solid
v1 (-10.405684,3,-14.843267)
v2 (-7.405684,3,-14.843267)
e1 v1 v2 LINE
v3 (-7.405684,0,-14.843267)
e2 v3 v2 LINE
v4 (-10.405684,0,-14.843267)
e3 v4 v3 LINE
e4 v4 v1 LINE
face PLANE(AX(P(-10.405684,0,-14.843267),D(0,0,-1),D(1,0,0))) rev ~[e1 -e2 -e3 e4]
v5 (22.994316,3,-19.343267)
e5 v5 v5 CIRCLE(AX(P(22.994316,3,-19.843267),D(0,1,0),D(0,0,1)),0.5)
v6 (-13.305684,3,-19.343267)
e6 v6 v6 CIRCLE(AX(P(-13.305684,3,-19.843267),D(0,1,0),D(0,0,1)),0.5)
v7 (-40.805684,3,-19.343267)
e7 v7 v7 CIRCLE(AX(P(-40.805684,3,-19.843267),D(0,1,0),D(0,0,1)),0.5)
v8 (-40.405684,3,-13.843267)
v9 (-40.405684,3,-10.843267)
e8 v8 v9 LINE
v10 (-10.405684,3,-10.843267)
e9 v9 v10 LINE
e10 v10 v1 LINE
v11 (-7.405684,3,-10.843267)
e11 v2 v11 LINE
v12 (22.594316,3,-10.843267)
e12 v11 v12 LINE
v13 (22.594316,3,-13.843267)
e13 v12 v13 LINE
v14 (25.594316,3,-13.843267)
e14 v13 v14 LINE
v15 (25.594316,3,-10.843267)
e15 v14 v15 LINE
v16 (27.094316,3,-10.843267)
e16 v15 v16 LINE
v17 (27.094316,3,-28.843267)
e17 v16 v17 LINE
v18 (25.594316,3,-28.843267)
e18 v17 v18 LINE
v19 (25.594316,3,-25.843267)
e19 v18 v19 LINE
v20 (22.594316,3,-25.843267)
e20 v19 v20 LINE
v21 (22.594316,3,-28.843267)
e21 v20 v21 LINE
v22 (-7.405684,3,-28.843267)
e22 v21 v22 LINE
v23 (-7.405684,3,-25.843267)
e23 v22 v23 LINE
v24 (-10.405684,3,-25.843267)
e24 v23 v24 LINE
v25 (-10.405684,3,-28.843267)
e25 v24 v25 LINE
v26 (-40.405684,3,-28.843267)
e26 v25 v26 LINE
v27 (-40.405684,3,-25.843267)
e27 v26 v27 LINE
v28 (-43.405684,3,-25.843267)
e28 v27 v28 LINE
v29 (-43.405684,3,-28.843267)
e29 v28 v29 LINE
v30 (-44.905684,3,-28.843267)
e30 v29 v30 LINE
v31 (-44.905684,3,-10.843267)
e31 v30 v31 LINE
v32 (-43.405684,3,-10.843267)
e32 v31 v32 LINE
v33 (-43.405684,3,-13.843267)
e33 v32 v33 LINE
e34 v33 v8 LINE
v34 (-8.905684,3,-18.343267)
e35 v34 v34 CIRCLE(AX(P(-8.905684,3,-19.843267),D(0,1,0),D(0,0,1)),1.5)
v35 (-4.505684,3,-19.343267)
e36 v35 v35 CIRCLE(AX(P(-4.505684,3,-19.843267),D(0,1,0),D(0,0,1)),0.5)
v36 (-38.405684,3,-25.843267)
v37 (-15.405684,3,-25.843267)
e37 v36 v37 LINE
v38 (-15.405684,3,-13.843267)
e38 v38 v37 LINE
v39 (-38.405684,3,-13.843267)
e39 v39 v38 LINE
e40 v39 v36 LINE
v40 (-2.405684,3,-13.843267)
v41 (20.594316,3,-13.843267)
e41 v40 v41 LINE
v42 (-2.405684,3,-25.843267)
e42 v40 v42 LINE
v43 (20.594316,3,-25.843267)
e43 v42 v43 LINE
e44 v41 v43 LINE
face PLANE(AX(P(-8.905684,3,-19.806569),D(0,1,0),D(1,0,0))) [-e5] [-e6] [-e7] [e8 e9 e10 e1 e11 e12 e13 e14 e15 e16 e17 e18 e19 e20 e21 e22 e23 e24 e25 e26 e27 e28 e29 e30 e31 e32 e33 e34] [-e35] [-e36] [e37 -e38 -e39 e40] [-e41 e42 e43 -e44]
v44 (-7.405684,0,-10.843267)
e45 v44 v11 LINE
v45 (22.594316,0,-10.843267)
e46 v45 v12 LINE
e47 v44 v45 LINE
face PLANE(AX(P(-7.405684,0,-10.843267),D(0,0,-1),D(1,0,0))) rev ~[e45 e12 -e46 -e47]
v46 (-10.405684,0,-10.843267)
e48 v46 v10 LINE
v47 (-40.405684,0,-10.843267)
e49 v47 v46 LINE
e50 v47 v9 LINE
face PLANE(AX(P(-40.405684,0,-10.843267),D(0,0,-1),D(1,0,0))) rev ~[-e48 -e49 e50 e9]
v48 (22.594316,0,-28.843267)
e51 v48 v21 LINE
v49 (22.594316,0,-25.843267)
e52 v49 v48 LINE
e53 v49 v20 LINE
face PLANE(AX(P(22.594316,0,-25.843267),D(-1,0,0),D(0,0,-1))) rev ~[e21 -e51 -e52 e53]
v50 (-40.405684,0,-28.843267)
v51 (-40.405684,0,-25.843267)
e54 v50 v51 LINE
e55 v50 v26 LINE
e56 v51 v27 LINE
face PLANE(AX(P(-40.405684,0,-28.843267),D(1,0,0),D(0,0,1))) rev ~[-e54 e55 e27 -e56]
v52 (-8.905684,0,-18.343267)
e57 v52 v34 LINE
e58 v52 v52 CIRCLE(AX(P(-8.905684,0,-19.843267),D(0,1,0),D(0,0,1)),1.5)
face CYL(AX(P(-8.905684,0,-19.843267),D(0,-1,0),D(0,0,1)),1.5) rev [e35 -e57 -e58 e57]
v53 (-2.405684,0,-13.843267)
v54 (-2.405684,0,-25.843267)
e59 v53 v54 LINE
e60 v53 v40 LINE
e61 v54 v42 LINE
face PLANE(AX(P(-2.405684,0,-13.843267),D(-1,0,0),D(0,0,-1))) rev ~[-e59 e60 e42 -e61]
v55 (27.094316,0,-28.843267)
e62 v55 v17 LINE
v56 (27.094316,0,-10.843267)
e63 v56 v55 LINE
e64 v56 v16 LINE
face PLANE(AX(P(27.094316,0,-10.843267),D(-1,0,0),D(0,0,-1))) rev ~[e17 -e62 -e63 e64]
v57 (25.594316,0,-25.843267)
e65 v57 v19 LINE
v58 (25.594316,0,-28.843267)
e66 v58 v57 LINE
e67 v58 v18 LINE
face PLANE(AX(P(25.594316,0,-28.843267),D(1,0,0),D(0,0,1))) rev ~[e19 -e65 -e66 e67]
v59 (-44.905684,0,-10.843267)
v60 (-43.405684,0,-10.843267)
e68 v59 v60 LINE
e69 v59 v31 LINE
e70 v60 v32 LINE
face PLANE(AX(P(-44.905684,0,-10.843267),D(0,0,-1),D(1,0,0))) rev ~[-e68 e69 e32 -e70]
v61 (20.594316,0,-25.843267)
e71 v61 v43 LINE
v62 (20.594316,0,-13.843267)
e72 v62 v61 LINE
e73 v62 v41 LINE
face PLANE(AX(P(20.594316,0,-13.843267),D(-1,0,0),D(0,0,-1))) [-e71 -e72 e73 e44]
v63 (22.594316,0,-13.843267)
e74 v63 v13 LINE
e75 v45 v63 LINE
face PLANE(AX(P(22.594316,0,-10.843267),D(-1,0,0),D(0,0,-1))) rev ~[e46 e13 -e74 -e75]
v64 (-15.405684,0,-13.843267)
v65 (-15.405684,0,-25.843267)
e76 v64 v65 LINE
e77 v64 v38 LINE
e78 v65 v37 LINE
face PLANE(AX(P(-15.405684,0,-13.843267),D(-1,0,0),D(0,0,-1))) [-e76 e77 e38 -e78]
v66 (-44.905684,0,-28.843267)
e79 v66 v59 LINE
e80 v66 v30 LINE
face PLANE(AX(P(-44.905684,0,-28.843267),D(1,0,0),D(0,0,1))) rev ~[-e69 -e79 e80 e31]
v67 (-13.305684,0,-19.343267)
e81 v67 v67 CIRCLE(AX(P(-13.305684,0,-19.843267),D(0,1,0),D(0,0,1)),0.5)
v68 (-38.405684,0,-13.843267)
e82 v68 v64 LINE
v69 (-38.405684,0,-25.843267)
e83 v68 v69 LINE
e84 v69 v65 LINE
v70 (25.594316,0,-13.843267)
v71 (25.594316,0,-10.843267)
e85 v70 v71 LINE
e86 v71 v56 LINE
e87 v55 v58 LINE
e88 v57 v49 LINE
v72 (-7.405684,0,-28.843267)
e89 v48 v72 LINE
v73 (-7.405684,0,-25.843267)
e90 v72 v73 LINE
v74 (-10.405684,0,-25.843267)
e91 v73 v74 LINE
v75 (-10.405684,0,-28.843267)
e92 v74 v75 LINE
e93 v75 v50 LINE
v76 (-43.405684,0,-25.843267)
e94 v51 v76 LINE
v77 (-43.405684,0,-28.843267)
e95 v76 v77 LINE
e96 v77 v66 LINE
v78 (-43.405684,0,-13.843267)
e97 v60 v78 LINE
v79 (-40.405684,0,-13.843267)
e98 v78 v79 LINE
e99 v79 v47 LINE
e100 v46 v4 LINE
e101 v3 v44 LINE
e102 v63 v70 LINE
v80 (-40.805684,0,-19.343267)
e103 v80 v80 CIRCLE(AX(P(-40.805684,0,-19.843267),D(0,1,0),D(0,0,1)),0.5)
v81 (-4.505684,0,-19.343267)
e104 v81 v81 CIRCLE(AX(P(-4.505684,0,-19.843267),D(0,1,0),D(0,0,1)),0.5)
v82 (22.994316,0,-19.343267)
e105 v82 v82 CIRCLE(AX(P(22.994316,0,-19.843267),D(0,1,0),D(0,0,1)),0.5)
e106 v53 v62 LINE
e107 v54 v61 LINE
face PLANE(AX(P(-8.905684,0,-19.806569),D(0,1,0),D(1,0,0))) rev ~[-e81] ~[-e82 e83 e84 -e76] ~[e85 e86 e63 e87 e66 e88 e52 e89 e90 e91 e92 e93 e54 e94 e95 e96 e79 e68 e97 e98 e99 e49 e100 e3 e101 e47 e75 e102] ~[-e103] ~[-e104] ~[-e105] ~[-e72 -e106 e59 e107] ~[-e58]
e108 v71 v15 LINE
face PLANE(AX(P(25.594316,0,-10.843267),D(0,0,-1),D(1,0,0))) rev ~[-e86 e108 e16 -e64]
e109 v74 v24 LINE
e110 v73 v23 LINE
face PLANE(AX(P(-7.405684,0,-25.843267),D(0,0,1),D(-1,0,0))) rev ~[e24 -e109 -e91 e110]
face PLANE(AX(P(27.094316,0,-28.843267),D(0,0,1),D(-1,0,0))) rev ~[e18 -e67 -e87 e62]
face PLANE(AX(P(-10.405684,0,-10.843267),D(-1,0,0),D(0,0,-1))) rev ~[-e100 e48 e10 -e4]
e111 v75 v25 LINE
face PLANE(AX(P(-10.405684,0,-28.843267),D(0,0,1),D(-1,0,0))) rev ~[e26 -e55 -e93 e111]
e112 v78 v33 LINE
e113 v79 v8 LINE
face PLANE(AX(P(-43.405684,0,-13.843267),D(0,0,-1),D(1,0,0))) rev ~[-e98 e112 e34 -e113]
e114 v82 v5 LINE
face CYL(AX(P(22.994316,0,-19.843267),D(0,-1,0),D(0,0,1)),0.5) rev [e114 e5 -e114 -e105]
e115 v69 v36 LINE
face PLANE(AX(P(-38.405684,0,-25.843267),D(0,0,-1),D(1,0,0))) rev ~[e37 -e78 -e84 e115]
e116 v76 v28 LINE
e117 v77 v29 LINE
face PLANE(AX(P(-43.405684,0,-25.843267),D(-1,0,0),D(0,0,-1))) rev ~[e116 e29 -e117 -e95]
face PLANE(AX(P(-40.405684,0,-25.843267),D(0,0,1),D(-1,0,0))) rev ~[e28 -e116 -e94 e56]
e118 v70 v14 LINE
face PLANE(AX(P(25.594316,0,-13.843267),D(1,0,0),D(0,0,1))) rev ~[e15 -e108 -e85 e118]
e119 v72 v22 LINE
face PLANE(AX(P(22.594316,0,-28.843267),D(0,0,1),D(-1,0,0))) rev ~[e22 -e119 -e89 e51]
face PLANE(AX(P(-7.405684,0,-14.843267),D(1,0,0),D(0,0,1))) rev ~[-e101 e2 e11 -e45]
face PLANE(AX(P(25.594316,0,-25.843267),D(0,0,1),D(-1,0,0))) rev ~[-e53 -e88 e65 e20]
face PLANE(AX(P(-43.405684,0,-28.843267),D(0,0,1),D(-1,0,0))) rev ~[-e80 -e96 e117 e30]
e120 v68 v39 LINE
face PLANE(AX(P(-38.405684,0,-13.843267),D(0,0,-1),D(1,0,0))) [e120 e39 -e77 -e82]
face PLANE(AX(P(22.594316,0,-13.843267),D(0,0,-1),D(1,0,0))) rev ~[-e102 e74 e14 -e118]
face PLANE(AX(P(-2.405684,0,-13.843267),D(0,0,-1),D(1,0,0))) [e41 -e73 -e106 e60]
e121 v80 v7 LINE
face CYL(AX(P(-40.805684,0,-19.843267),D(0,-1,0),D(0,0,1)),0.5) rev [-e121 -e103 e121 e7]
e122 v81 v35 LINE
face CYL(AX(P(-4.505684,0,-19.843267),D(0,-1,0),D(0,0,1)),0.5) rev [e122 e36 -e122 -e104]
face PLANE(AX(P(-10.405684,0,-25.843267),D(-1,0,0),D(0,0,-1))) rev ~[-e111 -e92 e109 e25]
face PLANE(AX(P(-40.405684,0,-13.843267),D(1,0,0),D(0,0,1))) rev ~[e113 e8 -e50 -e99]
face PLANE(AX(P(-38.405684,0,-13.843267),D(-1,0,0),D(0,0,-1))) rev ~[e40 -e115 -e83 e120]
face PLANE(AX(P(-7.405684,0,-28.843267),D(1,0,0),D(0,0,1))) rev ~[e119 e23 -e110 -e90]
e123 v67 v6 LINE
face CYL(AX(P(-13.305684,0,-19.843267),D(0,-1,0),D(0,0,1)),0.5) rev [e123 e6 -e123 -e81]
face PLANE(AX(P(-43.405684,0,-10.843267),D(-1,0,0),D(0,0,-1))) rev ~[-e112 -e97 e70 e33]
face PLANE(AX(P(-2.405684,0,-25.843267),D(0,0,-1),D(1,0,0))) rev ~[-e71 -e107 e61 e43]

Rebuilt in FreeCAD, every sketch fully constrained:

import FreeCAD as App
import Part
import Sketcher

V = App.Vector

doc = App.newDocument("Part")
body = doc.addObject("PartDesign::Body", "Body")

sketch1 = body.newObject("Sketcher::SketchObject", "Sketch")
sketch1.AttachmentSupport = (doc.getObject("XZ_Plane"), [""])
sketch1.MapMode = "FlatFace"
sketch1.addGeometry([
    Part.LineSegment(V(22.6, -25.8, 0), V(22.6, -28.8, 0)),
    Part.LineSegment(V(22.6, -28.8, 0), V(-7.4, -28.8, 0)),
    Part.LineSegment(V(-7.4, -28.8, 0), V(-7.4, -25.8, 0)),
    Part.LineSegment(V(-7.4, -25.8, 0), V(-10.4, -25.8, 0)),
    Part.LineSegment(V(-10.4, -25.8, 0), V(-10.4, -28.8, 0)),
    Part.LineSegment(V(-10.4, -28.8, 0), V(-40.4, -28.8, 0)),
    Part.LineSegment(V(-40.4, -28.8, 0), V(-40.4, -25.8, 0)),
    Part.LineSegment(V(-40.4, -25.8, 0), V(-43.4, -25.8, 0)),
    Part.LineSegment(V(-43.4, -25.8, 0), V(-43.4, -28.8, 0)),
    Part.LineSegment(V(-43.4, -28.8, 0), V(-44.9, -28.8, 0)),
    Part.LineSegment(V(-44.9, -28.8, 0), V(-44.9, -10.8, 0)),
    Part.LineSegment(V(-44.9, -10.8, 0), V(-43.4, -10.8, 0)),
    Part.LineSegment(V(-43.4, -10.8, 0), V(-43.4, -13.8, 0)),
    Part.LineSegment(V(-43.4, -13.8, 0), V(-40.4, -13.8, 0)),
    Part.LineSegment(V(-40.4, -13.8, 0), V(-40.4, -10.8, 0)),
    Part.LineSegment(V(-40.4, -10.8, 0), V(-10.4, -10.8, 0)),
    Part.LineSegment(V(-10.4, -10.8, 0), V(-10.4, -14.8, 0)),
    Part.LineSegment(V(-10.4, -14.8, 0), V(-7.4, -14.8, 0)),
    Part.LineSegment(V(-7.4, -14.8, 0), V(-7.4, -10.8, 0)),
    Part.LineSegment(V(-7.4, -10.8, 0), V(22.6, -10.8, 0)),
    Part.LineSegment(V(22.6, -10.8, 0), V(22.6, -13.8, 0)),
    Part.LineSegment(V(22.6, -13.8, 0), V(25.6, -13.8, 0)),
    Part.LineSegment(V(25.6, -13.8, 0), V(25.6, -10.8, 0)),
    Part.LineSegment(V(25.6, -10.8, 0), V(27.1, -10.8, 0)),
    Part.LineSegment(V(27.1, -10.8, 0), V(27.1, -28.8, 0)),
    Part.LineSegment(V(27.1, -28.8, 0), V(25.6, -28.8, 0)),
    Part.LineSegment(V(25.6, -28.8, 0), V(25.6, -25.8, 0)),
    Part.LineSegment(V(25.6, -25.8, 0), V(22.6, -25.8, 0)),
    Part.Circle(V(-40.8, -19.8, 0), V(0, 0, 1), 0.5),
    Part.LineSegment(V(-15.4, -13.8, 0), V(-38.4, -13.8, 0)),
    Part.LineSegment(V(-38.4, -13.8, 0), V(-38.4, -25.8, 0)),
    Part.LineSegment(V(-38.4, -25.8, 0), V(-15.4, -25.8, 0)),
    Part.LineSegment(V(-15.4, -25.8, 0), V(-15.4, -13.8, 0)),
    Part.Circle(V(-13.3, -19.8, 0), V(0, 0, 1), 0.5),
    Part.Circle(V(-8.9, -19.8, 0), V(0, 0, 1), 1.5),
    Part.Circle(V(-4.5, -19.8, 0), V(0, 0, 1), 0.5),
    Part.LineSegment(V(20.6, -13.8, 0), V(-2.4, -13.8, 0)),
    Part.LineSegment(V(-2.4, -13.8, 0), V(-2.4, -25.8, 0)),
    Part.LineSegment(V(-2.4, -25.8, 0), V(20.6, -25.8, 0)),
    Part.LineSegment(V(20.6, -25.8, 0), V(20.6, -13.8, 0)),
    Part.Circle(V(23, -19.8, 0), V(0, 0, 1), 0.5),
], False)
sketch1.addConstraint([
    Sketcher.Constraint("Coincident", 0, 2, 1, 1),
    Sketcher.Constraint("Coincident", 1, 2, 2, 1),
    Sketcher.Constraint("Coincident", 2, 2, 3, 1),
    Sketcher.Constraint("Coincident", 3, 2, 4, 1),
    Sketcher.Constraint("Coincident", 4, 2, 5, 1),
    Sketcher.Constraint("Coincident", 5, 2, 6, 1),
    Sketcher.Constraint("Coincident", 6, 2, 7, 1),
    Sketcher.Constraint("Coincident", 7, 2, 8, 1),
    Sketcher.Constraint("Coincident", 8, 2, 9, 1),
    Sketcher.Constraint("Coincident", 9, 2, 10, 1),
    Sketcher.Constraint("Coincident", 10, 2, 11, 1),
    Sketcher.Constraint("Coincident", 11, 2, 12, 1),
    Sketcher.Constraint("Coincident", 12, 2, 13, 1),
    Sketcher.Constraint("Coincident", 13, 2, 14, 1),
    Sketcher.Constraint("Coincident", 14, 2, 15, 1),
    Sketcher.Constraint("Coincident", 15, 2, 16, 1),
    Sketcher.Constraint("Coincident", 16, 2, 17, 1),
    Sketcher.Constraint("Coincident", 17, 2, 18, 1),
    Sketcher.Constraint("Coincident", 18, 2, 19, 1),
    Sketcher.Constraint("Coincident", 19, 2, 20, 1),
    Sketcher.Constraint("Coincident", 20, 2, 21, 1),
    Sketcher.Constraint("Coincident", 21, 2, 22, 1),
    Sketcher.Constraint("Coincident", 22, 2, 23, 1),
    Sketcher.Constraint("Coincident", 23, 2, 24, 1),
    Sketcher.Constraint("Coincident", 24, 2, 25, 1),
    Sketcher.Constraint("Coincident", 25, 2, 26, 1),
    Sketcher.Constraint("Coincident", 26, 2, 27, 1),
    Sketcher.Constraint("Coincident", 27, 2, 0, 1),
    Sketcher.Constraint("Coincident", 29, 2, 30, 1),
    Sketcher.Constraint("Coincident", 30, 2, 31, 1),
    Sketcher.Constraint("Coincident", 31, 2, 32, 1),
    Sketcher.Constraint("Coincident", 32, 2, 29, 1),
    Sketcher.Constraint("Coincident", 36, 2, 37, 1),
    Sketcher.Constraint("Coincident", 37, 2, 38, 1),
    Sketcher.Constraint("Coincident", 38, 2, 39, 1),
    Sketcher.Constraint("Coincident", 39, 2, 36, 1),
    Sketcher.Constraint("Vertical", 0),
    Sketcher.Constraint("Horizontal", 1),
    Sketcher.Constraint("Vertical", 2),
    Sketcher.Constraint("Horizontal", 3),
    Sketcher.Constraint("Vertical", 4),
    Sketcher.Constraint("Horizontal", 5),
    Sketcher.Constraint("Vertical", 6),
    Sketcher.Constraint("Horizontal", 7),
    Sketcher.Constraint("Vertical", 8),
    Sketcher.Constraint("Horizontal", 9),
    Sketcher.Constraint("Vertical", 10),
    Sketcher.Constraint("Horizontal", 11),
    Sketcher.Constraint("Vertical", 12),
    Sketcher.Constraint("Horizontal", 13),
    Sketcher.Constraint("Vertical", 14),
    Sketcher.Constraint("Horizontal", 15),
    Sketcher.Constraint("Vertical", 16),
    Sketcher.Constraint("Horizontal", 17),
    Sketcher.Constraint("Vertical", 18),
    Sketcher.Constraint("Horizontal", 19),
    Sketcher.Constraint("Vertical", 20),
    Sketcher.Constraint("Horizontal", 21),
    Sketcher.Constraint("Vertical", 22),
    Sketcher.Constraint("Horizontal", 23),
    Sketcher.Constraint("Vertical", 24),
    Sketcher.Constraint("Horizontal", 25),
    Sketcher.Constraint("Vertical", 26),
    Sketcher.Constraint("Horizontal", 27),
    Sketcher.Constraint("Horizontal", 29),
    Sketcher.Constraint("Vertical", 30),
    Sketcher.Constraint("Horizontal", 31),
    Sketcher.Constraint("Vertical", 32),
    Sketcher.Constraint("Horizontal", 36),
    Sketcher.Constraint("Vertical", 37),
    Sketcher.Constraint("Horizontal", 38),
    Sketcher.Constraint("Vertical", 39),
    Sketcher.Constraint("Equal", 28, 33),
    Sketcher.Constraint("Equal", 33, 35),
    Sketcher.Constraint("Equal", 35, 40),
    Sketcher.Constraint("Horizontal", 28, 3, 33, 3),
    Sketcher.Constraint("Horizontal", 33, 3, 34, 3),
    Sketcher.Constraint("Horizontal", 34, 3, 35, 3),
    Sketcher.Constraint("Horizontal", 35, 3, 40, 3),
    Sketcher.Constraint("Horizontal", 1, 2, 4, 2),
    Sketcher.Constraint("Horizontal", 3, 2, 6, 2),
    Sketcher.Constraint("Horizontal", 5, 2, 8, 2),
    Sketcher.Constraint("Horizontal", 11, 2, 14, 2),
    Sketcher.Constraint("Horizontal", 15, 2, 18, 2),
    Sketcher.Constraint("Horizontal", 13, 2, 20, 2),
    Sketcher.Constraint("Horizontal", 19, 2, 22, 2),
    Sketcher.Constraint("Horizontal", 9, 2, 24, 2),
    Sketcher.Constraint("Horizontal", 7, 2, 26, 2),
    Sketcher.Constraint("Horizontal", 21, 2, 29, 2),
    Sketcher.Constraint("Horizontal", 27, 2, 30, 2),
    Sketcher.Constraint("Horizontal", 32, 2, 36, 2),
    Sketcher.Constraint("Horizontal", 31, 2, 37, 2),
    Sketcher.Constraint("Vertical", 8, 2, 11, 2),
    Sketcher.Constraint("Vertical", 6, 2, 13, 2),
    Sketcher.Constraint("Vertical", 4, 2, 15, 2),
    Sketcher.Constraint("Vertical", 2, 2, 17, 2),
    Sketcher.Constraint("Vertical", 0, 2, 19, 2),
    Sketcher.Constraint("Vertical", 22, 2, 25, 2),
    Sketcher.Constraint("Equal", 1, 5),
    Sketcher.Constraint("Equal", 3, 7),
    Sketcher.Constraint("Equal", 17, 21),
    Sketcher.Constraint("Equal", 11, 23),
    Sketcher.Constraint("Equal", 31, 36),
    Sketcher.Constraint("Equal", 27, 0),
    Sketcher.Constraint("Equal", 8, 12),
    Sketcher.Constraint("Diameter", 28, 1.0),
    Sketcher.Constraint("Diameter", 34, 3.0),
    Sketcher.Constraint("DistanceX", 1, 2, 1, 1, 30.0),
    Sketcher.Constraint("DistanceX", 3, 2, 3, 1, 3.0),
    Sketcher.Constraint("DistanceX", 29, 2, 29, 1, 23.0),
    Sketcher.Constraint("DistanceY", 10, 1, 10, 2, 18.0),
    Sketcher.Constraint("DistanceY", 16, 2, 16, 1, 4.0),
    Sketcher.Constraint("DistanceX", 9, 2, 9, 1, 1.5),
    Sketcher.Constraint("DistanceY", 0, 2, 40, 3, 9.0),
    Sketcher.Constraint("DistanceX", 13, 2, 29, 2, 2.0),
    Sketcher.Constraint("DistanceX", 17, 2, 36, 2, 5.0),
    Sketcher.Constraint("DistanceX", 28, 3, 33, 3, 27.5),
    Sketcher.Constraint("DistanceX", 33, 3, 34, 3, 4.4),
    Sketcher.Constraint("DistanceX", 34, 3, 35, 3, 4.4),
    Sketcher.Constraint("DistanceX", 35, 3, 40, 3, 27.5),
    Sketcher.Constraint("DistanceX", 0, 2, 40, 3, 0.4),
    Sketcher.Constraint("DistanceX", 28, 3, -1, 1, 40.805684),
    Sketcher.Constraint("DistanceY", 28, 3, -1, 1, 19.843267),
])
pad1 = body.newObject("PartDesign::Pad", "Pad")
pad1.Profile = sketch1
pad1.Length = 3
pad1.Reversed = True

doc.recompute()
